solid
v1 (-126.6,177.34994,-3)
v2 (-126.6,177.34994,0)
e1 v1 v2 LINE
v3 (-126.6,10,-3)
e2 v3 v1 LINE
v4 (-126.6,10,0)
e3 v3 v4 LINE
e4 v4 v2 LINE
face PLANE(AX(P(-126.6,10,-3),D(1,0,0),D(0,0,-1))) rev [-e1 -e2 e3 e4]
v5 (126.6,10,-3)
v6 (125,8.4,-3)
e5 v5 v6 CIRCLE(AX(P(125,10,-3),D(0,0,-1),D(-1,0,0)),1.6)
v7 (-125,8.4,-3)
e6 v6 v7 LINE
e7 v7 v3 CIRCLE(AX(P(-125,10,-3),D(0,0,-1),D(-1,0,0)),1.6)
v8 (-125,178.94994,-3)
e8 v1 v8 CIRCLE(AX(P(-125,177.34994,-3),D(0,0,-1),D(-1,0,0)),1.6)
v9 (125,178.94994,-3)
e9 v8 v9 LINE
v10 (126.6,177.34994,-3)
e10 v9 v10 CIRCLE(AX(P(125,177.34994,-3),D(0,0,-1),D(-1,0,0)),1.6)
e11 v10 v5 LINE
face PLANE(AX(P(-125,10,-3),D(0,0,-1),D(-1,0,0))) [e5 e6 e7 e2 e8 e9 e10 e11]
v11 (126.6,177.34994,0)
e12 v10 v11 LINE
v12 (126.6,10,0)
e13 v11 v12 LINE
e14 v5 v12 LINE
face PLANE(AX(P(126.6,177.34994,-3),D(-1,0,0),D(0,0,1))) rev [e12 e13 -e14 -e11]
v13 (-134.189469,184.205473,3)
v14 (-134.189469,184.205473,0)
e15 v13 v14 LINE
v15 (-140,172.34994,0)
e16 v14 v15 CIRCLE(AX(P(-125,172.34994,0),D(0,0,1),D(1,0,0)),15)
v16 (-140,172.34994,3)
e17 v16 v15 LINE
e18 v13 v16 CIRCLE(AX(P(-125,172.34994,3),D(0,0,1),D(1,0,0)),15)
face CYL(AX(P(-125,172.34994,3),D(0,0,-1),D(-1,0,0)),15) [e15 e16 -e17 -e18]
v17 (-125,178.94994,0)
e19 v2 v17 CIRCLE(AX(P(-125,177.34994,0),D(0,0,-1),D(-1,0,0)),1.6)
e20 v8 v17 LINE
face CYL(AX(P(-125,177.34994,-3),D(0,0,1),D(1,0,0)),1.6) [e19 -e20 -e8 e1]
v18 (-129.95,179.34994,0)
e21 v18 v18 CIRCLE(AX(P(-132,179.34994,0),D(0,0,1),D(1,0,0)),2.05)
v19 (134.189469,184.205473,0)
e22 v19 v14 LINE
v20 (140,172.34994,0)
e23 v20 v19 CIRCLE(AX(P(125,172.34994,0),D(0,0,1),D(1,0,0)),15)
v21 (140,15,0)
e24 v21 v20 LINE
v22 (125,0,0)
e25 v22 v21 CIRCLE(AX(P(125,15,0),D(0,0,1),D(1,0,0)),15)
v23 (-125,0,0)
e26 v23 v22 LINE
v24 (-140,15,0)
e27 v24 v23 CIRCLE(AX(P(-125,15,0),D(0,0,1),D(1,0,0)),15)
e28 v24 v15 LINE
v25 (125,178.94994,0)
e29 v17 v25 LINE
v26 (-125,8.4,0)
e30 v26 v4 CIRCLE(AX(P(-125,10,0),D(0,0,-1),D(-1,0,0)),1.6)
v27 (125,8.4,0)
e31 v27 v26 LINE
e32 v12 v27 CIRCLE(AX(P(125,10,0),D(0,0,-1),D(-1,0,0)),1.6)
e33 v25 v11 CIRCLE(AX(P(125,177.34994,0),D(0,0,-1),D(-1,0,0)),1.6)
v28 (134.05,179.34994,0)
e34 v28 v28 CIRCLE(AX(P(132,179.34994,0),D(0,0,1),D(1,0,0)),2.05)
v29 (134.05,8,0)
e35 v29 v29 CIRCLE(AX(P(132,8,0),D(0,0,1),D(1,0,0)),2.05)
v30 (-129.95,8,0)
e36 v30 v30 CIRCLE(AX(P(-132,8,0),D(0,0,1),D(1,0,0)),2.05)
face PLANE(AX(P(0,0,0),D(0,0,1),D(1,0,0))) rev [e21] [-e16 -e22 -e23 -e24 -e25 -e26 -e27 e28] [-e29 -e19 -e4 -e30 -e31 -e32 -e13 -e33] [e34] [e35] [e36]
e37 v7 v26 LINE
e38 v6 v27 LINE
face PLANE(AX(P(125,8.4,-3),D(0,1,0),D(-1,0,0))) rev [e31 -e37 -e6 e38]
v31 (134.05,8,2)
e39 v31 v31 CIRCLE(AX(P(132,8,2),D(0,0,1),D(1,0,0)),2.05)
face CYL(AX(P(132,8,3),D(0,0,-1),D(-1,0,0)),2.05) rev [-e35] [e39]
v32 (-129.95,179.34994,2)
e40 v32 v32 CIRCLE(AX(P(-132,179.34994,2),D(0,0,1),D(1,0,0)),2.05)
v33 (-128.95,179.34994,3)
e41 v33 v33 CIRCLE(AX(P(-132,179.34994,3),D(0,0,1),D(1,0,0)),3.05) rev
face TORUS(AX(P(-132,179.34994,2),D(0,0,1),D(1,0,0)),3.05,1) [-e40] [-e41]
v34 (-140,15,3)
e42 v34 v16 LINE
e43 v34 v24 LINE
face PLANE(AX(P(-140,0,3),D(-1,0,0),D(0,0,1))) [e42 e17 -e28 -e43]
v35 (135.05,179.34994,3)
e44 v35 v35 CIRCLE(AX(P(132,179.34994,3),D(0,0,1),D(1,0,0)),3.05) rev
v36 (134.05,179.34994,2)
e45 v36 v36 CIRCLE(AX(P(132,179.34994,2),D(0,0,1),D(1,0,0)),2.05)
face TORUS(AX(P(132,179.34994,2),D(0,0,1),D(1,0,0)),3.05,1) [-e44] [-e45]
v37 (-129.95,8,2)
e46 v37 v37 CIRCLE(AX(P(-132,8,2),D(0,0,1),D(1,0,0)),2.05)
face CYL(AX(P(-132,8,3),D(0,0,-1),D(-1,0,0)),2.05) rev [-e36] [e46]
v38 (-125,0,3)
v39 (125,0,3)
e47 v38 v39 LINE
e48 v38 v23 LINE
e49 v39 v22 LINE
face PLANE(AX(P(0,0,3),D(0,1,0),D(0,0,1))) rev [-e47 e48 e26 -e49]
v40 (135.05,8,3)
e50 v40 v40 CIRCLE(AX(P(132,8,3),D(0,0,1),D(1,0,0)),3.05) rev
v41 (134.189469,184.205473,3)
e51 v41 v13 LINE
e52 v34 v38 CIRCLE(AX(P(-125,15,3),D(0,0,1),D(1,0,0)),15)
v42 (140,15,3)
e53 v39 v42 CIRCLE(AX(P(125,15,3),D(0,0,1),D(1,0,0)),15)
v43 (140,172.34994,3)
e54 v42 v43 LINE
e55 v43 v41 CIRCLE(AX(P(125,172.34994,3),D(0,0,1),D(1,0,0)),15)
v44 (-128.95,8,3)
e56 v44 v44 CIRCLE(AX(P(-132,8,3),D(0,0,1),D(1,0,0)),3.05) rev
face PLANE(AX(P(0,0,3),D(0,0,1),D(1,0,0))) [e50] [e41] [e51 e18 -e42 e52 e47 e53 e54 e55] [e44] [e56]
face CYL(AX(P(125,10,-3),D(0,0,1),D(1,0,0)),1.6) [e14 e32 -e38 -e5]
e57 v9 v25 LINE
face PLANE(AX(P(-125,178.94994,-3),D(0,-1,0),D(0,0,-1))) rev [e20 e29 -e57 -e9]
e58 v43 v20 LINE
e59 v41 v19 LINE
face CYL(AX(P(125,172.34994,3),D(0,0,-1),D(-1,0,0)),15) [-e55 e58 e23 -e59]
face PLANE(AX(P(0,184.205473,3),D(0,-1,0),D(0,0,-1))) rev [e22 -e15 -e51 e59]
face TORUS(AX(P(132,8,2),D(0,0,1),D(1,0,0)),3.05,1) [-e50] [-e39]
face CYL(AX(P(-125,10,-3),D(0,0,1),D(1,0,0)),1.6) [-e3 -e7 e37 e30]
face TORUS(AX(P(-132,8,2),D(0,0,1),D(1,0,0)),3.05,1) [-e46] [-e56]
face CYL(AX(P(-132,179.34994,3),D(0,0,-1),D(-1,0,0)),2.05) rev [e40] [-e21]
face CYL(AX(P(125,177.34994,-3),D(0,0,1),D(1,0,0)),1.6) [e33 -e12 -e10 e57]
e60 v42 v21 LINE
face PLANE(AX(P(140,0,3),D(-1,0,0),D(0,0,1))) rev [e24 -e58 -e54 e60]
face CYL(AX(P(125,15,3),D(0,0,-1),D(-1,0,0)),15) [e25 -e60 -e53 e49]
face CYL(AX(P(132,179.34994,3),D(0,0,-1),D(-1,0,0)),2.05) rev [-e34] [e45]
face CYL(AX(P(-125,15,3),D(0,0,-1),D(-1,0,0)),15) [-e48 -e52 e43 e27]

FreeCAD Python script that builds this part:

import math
import FreeCAD as App
import Part
import Sketcher

V = App.Vector


def edges_at(feature, points):
    """Names of the edges that pass closest to the given points."""
    edges = feature.Shape.Edges
    near = lambda p: min(range(len(edges)), key=lambda i: edges[i].distToShape(Part.Vertex(*p))[0])
    return sorted({f"Edge{near(p) + 1}" for p in points})

doc = App.newDocument("Part")
body = doc.addObject("PartDesign::Body", "Body")

# Sketch on XY plane
sketch1 = doc.addObject("Sketcher::SketchObject", "Sketch")
body.addObject(sketch1)
sketch1.AttachmentSupport = (doc.XY_Plane, [""])
sketch1.MapMode = "FlatFace"
sketch1.addGeometry([
    Part.LineSegment(V(-125, 0, 0), V(125, 0, 0)),  # 0
    Part.ArcOfCircle(Part.Circle(V(125, 15, 0), V(0, 0, 1), 15), math.radians(-90), math.radians(0)),  # 1
    Part.LineSegment(V(140, 15, 0), V(140, 172.3, 0)),  # 2
    Part.ArcOfCircle(Part.Circle(V(125, 172.3, 0), V(0, 0, 1), 15), math.radians(0), math.radians(52)),  # 3
    Part.LineSegment(V(134.2, 184.2, 0), V(-134.2, 184.2, 0)),  # 4
    Part.ArcOfCircle(Part.Circle(V(-125, 172.3, 0), V(0, 0, 1), 15), math.radians(128), math.radians(180)),  # 5
    Part.LineSegment(V(-140, 172.3, 0), V(-140, 15, 0)),  # 6
    Part.ArcOfCircle(Part.Circle(V(-125, 15, 0), V(0, 0, 1), 15), math.radians(180), math.radians(270)),  # 7
    Part.Circle(V(132, 179.3, 0), V(0, 0, 1), 2),  # 8
    Part.Circle(V(-132, 179.3, 0), V(0, 0, 1), 2),  # 9
    Part.Circle(V(132, 8, 0), V(0, 0, 1), 2),  # 10
    Part.Circle(V(-132, 8, 0), V(0, 0, 1), 2),  # 11
], False)
sketch1.addConstraint([
    Sketcher.Constraint("Tangent", 0, 2, 1, 1),
    Sketcher.Constraint("Tangent", 1, 2, 2, 1),
    Sketcher.Constraint("Tangent", 2, 2, 3, 1),
    Sketcher.Constraint("Coincident", 3, 2, 4, 1),
    Sketcher.Constraint("Coincident", 4, 2, 5, 1),
    Sketcher.Constraint("Tangent", 5, 2, 6, 1),
    Sketcher.Constraint("Tangent", 6, 2, 7, 1),
    Sketcher.Constraint("Tangent", 7, 2, 0, 1),
    Sketcher.Constraint("Horizontal", 0),
    Sketcher.Constraint("Vertical", 2),
    Sketcher.Constraint("Horizontal", 4),
    Sketcher.Constraint("Vertical", 6),
    Sketcher.Constraint("Equal", 1, 3),
    Sketcher.Constraint("Equal", 3, 5),
    Sketcher.Constraint("Equal", 5, 7),
    Sketcher.Constraint("Equal", 8, 9),
    Sketcher.Constraint("Equal", 9, 10),
    Sketcher.Constraint("Equal", 10, 11),
    Sketcher.Constraint("Symmetric", 0, 2, 7, 2, -1, 1),
    Sketcher.Constraint("Symmetric", 8, 3, 9, 3, -2),
    Sketcher.Constraint("Symmetric", 10, 3, 11, 3, -2),
    Sketcher.Constraint("Horizontal", 3, 3, 5, 3),
    Sketcher.Constraint("Vertical", 8, 3, 10, 3),
    Sketcher.Constraint("Radius", 1, 15.0),
    Sketcher.Constraint("Diameter", 8, 4.1),
    Sketcher.Constraint("DistanceX", 0, 1, 0, 2, 250.0),
    Sketcher.Constraint("DistanceX", -1, 1, 8, 3, 132.0),
    Sketcher.Constraint("DistanceY", -1, 1, 10, 3, 8.0),
    Sketcher.Constraint("DistanceY", 3, 3, 8, 3, 7.0),
    Sketcher.Constraint("DistanceY", 2, 1, 2, 2, 157.34994),
    Sketcher.Constraint("DistanceX", 4, 2, 4, 1, 268.378937),
])
pad1 = doc.addObject("PartDesign::Pad", "Pad")
body.addObject(pad1)
pad1.Profile = sketch1
pad1.Length = 3

# Sketch on XY plane
sketch2 = doc.addObject("Sketcher::SketchObject", "Sketch001")
body.addObject(sketch2)
sketch2.AttachmentSupport = (doc.XY_Plane, [""])
sketch2.MapMode = "FlatFace"
sketch2.addGeometry([
    Part.LineSegment(V(126.6, 177.3, 0), V(126.6, 10, 0)),  # 0
    Part.ArcOfCircle(Part.Circle(V(125, 10, 0), V(0, 0, 1), 1.6), math.radians(-90), math.radians(0)),  # 1
    Part.LineSegment(V(125, 8.4, 0), V(-125, 8.4, 0)),  # 2
    Part.ArcOfCircle(Part.Circle(V(-125, 10, 0), V(0, 0, 1), 1.6), math.radians(180), math.radians(270)),  # 3
    Part.LineSegment(V(-126.6, 10, 0), V(-126.6, 177.3, 0)),  # 4
    Part.ArcOfCircle(Part.Circle(V(-125, 177.3, 0), V(0, 0, 1), 1.6), math.radians(90), math.radians(180)),  # 5
    Part.LineSegment(V(-125, 178.9, 0), V(125, 178.9, 0)),  # 6
    Part.ArcOfCircle(Part.Circle(V(125, 177.3, 0), V(0, 0, 1), 1.6), math.radians(0), math.radians(90)),  # 7
], False)
sketch2.addConstraint([
    Sketcher.Constraint("Tangent", 0, 2, 1, 2),
    Sketcher.Constraint("Tangent", 1, 1, 2, 1),
    Sketcher.Constraint("Tangent", 2, 2, 3, 2),
    Sketcher.Constraint("Tangent", 3, 1, 4, 1),
    Sketcher.Constraint("Tangent", 4, 2, 5, 2),
    Sketcher.Constraint("Tangent", 5, 1, 6, 1),
    Sketcher.Constraint("Tangent", 6, 2, 7, 2),
    Sketcher.Constraint("Tangent", 7, 1, 0, 1),
    Sketcher.Constraint("Vertical", 0),
    Sketcher.Constraint("Horizontal", 2),
    Sketcher.Constraint("Vertical", 4),
    Sketcher.Constraint("Horizontal", 6),
    Sketcher.Constraint("Equal", 1, 3),
    Sketcher.Constraint("Equal", 3, 5),
    Sketcher.Constraint("Equal", 5, 7),
    Sketcher.Constraint("Radius", 1, 1.6),
    Sketcher.Constraint("DistanceX", 2, 2, 2, 1, 250.0),
    Sketcher.Constraint("DistanceX", -1, 1, 1, 3, 125.0),
    Sketcher.Constraint("DistanceY", -1, 1, 1, 3, 10.0),
    Sketcher.Constraint("DistanceY", 0, 2, 0, 1, 167.34994),
])
pad2 = doc.addObject("PartDesign::Pad", "Pad001")
body.addObject(pad2)
pad2.Profile = sketch2
pad2.Length = 3
pad2.Reversed = True
doc.recompute()

fillet = doc.addObject("PartDesign::Fillet", "Fillet")
body.addObject(fillet)
fillet.Base = (pad2, edges_at(pad2, [
    (-134.05, 8, 3),
    (129.95, 8, 3),
    (129.95, 179.35, 3),
    (-134.05, 179.35, 3),
]))
fillet.Radius = 1

doc.recompute()
